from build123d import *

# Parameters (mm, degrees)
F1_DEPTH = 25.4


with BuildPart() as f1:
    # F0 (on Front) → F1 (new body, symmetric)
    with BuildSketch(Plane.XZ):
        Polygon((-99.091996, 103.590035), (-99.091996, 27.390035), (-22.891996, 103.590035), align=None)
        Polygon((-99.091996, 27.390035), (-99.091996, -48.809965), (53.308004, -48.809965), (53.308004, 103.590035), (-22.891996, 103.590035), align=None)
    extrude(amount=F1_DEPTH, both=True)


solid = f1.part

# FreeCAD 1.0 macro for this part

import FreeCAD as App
import Part
import Sketcher
Q = App.Units.Quantity

doc = App.newDocument("Part")
body = doc.addObject("PartDesign::Body", "Body")

sketch1 = doc.addObject("Sketcher::SketchObject", "Sketch")
body.addObject(sketch1)
sketch1.AttachmentSupport = (doc.XZ_Plane, [""])
sketch1.MapMode = "FlatFace"
sketch1.addGeometry([
    Part.LineSegment(App.Vector(-99, 104, 0), App.Vector(-99, -49, 0)),
    Part.LineSegment(App.Vector(-99, -49, 0), App.Vector(53, -49, 0)),
    Part.LineSegment(App.Vector(53, -49, 0), App.Vector(53, 104, 0)),
    Part.LineSegment(App.Vector(53, 104, 0), App.Vector(-99, 104, 0)),
], False)
sketch1.addConstraint([
    Sketcher.Constraint("Coincident", 0, 2, 1, 1),
    Sketcher.Constraint("Coincident", 1, 2, 2, 1),
    Sketcher.Constraint("Coincident", 2, 2, 3, 1),
    Sketcher.Constraint("Coincident", 3, 2, 0, 1),
    Sketcher.Constraint("Vertical", 0),
    Sketcher.Constraint("Horizontal", 1),
    Sketcher.Constraint("Vertical", 2),
    Sketcher.Constraint("Horizontal", 3),
    Sketcher.Constraint("Equal", 3, 0),
    Sketcher.Constraint("DistanceX", 1, 1, 1, 2, Q("6 in")),
    Sketcher.Constraint("DistanceX", 0, 2, -1, 1, Q("99.091996 mm")),
    Sketcher.Constraint("DistanceY", 0, 2, -1, 1, Q("48.809965 mm")),
])
pad1 = doc.addObject("PartDesign::Pad", "Pad")
body.addObject(pad1)
pad1.Profile = sketch1
pad1.Length = Q("2 in")
pad1.Midplane = True

doc.recompute()
